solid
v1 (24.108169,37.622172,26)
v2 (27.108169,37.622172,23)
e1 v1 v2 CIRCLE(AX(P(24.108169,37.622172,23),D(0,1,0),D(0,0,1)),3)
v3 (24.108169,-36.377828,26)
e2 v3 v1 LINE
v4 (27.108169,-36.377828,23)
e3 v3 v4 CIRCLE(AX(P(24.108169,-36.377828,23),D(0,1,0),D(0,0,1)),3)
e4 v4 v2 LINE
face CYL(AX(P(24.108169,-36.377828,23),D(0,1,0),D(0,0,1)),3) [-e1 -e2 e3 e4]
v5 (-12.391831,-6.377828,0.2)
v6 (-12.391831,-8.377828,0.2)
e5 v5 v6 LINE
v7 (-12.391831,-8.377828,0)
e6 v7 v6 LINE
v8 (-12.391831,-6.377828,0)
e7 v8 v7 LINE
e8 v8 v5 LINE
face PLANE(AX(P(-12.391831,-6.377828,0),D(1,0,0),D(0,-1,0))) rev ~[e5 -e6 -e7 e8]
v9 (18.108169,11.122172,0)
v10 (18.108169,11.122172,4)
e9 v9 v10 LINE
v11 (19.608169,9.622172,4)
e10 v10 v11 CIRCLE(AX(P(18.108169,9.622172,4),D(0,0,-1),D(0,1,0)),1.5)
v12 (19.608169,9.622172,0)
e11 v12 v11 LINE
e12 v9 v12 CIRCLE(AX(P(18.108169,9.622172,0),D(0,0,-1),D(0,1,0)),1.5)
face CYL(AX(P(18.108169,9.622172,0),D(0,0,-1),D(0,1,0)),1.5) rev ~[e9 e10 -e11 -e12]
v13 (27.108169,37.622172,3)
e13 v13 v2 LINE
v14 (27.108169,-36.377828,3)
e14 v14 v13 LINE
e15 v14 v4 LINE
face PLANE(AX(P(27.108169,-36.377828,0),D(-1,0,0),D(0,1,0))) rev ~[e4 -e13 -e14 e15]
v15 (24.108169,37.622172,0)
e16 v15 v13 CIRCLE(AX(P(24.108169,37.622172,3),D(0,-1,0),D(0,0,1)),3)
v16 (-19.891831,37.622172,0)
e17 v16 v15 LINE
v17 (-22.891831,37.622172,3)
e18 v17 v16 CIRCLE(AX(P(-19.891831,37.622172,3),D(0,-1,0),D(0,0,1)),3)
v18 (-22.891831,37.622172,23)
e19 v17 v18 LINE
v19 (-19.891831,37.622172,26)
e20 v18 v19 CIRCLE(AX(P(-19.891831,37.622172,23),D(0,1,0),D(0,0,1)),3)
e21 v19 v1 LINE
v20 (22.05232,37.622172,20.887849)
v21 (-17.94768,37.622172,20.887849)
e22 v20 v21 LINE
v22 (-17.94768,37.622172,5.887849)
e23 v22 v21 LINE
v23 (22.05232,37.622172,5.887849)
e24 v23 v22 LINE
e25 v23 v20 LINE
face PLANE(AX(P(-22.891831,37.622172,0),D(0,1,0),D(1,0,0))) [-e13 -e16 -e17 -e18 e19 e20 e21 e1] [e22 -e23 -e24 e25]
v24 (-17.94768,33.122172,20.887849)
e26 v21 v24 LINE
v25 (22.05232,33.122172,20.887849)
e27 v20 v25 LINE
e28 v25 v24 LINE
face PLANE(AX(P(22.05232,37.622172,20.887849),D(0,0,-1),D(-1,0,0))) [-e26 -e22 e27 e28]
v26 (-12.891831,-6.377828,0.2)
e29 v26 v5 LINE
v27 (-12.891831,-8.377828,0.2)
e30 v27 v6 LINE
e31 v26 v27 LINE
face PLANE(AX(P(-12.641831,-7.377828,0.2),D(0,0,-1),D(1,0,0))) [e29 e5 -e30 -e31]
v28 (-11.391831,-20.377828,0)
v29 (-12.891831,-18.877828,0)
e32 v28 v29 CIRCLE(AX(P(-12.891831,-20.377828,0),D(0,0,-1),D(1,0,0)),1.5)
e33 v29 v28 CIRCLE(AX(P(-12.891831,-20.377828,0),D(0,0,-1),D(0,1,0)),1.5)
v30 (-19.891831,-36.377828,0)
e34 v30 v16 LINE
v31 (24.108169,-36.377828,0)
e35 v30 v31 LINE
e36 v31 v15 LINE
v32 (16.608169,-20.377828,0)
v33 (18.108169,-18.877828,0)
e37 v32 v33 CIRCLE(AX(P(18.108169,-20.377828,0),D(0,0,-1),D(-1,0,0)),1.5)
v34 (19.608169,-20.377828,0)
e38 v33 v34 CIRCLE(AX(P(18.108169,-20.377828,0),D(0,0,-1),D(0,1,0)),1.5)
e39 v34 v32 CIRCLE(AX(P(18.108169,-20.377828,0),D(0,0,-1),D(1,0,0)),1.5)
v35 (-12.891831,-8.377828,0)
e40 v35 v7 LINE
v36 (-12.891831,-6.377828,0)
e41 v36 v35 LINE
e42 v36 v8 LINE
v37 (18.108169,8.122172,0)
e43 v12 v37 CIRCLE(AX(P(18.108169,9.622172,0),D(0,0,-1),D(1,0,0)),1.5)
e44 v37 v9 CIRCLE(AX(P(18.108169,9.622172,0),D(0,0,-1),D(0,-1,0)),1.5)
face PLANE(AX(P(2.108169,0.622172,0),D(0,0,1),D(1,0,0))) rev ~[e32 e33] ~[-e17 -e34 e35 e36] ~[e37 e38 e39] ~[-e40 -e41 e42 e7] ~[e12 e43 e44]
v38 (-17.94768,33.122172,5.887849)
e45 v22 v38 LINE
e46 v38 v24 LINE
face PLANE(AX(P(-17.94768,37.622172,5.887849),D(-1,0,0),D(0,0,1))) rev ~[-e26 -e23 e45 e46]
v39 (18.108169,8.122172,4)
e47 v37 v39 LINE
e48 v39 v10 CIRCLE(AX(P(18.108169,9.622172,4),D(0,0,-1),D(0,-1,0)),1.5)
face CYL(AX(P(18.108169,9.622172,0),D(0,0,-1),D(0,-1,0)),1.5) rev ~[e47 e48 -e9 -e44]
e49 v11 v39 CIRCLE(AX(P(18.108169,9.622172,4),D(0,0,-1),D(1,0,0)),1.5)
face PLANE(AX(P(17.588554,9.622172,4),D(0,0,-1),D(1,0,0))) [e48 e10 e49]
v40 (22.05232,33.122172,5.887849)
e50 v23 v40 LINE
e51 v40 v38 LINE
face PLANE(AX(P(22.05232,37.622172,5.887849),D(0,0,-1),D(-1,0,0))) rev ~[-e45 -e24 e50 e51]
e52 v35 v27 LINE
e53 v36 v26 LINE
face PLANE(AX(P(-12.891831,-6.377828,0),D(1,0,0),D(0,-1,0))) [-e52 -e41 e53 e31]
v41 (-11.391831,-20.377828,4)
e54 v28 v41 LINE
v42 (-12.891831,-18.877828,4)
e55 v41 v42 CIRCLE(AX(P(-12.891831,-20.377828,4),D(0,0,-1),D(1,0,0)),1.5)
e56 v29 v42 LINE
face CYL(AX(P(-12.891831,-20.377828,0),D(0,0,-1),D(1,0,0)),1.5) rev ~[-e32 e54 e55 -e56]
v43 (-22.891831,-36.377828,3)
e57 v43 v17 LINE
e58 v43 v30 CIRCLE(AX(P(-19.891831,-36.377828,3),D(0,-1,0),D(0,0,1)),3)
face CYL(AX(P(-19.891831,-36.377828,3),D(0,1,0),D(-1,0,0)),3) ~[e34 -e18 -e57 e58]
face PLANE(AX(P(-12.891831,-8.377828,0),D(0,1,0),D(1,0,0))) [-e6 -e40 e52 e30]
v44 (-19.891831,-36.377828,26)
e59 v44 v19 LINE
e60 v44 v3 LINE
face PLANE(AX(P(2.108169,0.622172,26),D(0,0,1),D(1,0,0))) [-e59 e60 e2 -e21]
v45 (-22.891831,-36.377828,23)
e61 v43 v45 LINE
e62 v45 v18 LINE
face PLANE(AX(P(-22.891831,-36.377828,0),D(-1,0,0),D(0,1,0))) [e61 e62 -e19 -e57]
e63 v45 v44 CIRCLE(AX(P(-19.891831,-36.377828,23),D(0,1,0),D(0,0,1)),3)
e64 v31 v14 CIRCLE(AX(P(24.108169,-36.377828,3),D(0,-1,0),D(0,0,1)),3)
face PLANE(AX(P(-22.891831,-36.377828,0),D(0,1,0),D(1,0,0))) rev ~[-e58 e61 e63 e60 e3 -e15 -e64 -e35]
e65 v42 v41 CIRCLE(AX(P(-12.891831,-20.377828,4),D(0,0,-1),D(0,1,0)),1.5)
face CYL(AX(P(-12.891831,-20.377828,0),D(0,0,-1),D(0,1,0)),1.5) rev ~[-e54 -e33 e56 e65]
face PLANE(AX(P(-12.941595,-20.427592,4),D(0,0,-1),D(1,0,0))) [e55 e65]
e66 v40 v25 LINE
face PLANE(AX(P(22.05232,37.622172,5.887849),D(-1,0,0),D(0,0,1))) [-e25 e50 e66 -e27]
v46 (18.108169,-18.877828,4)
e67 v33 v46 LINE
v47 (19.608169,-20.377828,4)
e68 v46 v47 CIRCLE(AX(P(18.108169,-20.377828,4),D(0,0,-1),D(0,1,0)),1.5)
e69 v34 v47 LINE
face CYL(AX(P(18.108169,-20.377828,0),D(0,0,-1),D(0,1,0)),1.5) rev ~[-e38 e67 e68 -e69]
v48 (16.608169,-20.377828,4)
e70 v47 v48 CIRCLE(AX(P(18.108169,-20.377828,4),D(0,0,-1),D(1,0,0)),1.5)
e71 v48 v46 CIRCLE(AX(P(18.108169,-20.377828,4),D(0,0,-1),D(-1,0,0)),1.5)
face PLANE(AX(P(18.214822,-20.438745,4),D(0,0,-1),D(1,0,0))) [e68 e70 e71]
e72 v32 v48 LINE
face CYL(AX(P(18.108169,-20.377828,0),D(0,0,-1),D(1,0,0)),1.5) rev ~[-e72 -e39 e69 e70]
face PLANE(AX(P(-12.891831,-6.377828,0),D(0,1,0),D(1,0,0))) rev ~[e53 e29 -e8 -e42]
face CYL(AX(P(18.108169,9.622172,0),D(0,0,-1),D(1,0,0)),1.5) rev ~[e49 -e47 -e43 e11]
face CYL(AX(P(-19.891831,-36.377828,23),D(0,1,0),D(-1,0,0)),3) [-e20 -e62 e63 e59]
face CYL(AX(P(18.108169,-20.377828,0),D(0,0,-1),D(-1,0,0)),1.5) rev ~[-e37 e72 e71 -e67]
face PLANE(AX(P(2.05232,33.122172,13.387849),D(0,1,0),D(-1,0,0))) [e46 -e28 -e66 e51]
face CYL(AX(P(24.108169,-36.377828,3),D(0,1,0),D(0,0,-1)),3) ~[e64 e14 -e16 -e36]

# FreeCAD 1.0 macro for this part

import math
import FreeCAD as App
import Part
import Sketcher
from FreeCAD import Vector
Q = App.Units.Quantity


def edges_at(feature, points):
    """Names of the edges that pass closest to the given points."""
    edges = feature.Shape.Edges
    near = lambda p: min(range(len(edges)), key=lambda i: edges[i].distToShape(Part.Vertex(*p))[0])
    return sorted({f"Edge{near(p) + 1}" for p in points})

doc = App.newDocument("Part")
body = doc.addObject("PartDesign::Body", "Body")

# Sketch on XY plane
sketch1 = body.newObject("Sketcher::SketchObject", "Sketch")
sketch1.AttachmentSupport = (doc.getObject("XY_Plane"), [""])
sketch1.MapMode = "FlatFace"
sketch1.addGeometry([
    Part.LineSegment(Vector(-23, 38, 0), Vector(-23, -36, 0)),
    Part.LineSegment(Vector(-23, -36, 0), Vector(27, -36, 0)),
    Part.LineSegment(Vector(27, -36, 0), Vector(27, 38, 0)),
    Part.LineSegment(Vector(27, 38, 0), Vector(-23, 38, 0)),
], False)
sketch1.addConstraint([
    Sketcher.Constraint("Coincident", 0, 2, 1, 1),
    Sketcher.Constraint("Coincident", 1, 2, 2, 1),
    Sketcher.Constraint("Coincident", 2, 2, 3, 1),
    Sketcher.Constraint("Coincident", 3, 2, 0, 1),
    Sketcher.Constraint("Vertical", 0),
    Sketcher.Constraint("Horizontal", 1),
    Sketcher.Constraint("Vertical", 2),
    Sketcher.Constraint("Horizontal", 3),
    Sketcher.Constraint("DistanceX", 1, 1, 1, 2, Q("50 mm")),
    Sketcher.Constraint("DistanceY", 0, 2, 0, 1, Q("74 mm")),
    Sketcher.Constraint("DistanceX", 0, 2, -1, 1, Q("22.891831 mm")),
    Sketcher.Constraint("DistanceY", 0, 2, -1, 1, Q("36.377828 mm")),
])
pad1 = body.newObject("PartDesign::Pad", "Pad")
pad1.Profile = sketch1
pad1.Length = 26

# Sketch on XZ plane
sketch2 = body.newObject("Sketcher::SketchObject", "Sketch001")
sketch2.AttachmentSupport = (doc.getObject("XZ_Plane"), [""])
sketch2.MapMode = "FlatFace"
sketch2.AttachmentOffset = App.Placement(Vector(0, 0, -37.622172), App.Rotation())
sketch2.addGeometry([
    Part.LineSegment(Vector(22, 21, 0), Vector(22, 6, 0)),
    Part.LineSegment(Vector(22, 6, 0), Vector(-18, 6, 0)),
    Part.LineSegment(Vector(-18, 6, 0), Vector(-18, 21, 0)),
    Part.LineSegment(Vector(-18, 21, 0), Vector(22, 21, 0)),
], False)
sketch2.addConstraint([
    Sketcher.Constraint("Coincident", 0, 2, 1, 1),
    Sketcher.Constraint("Coincident", 1, 2, 2, 1),
    Sketcher.Constraint("Coincident", 2, 2, 3, 1),
    Sketcher.Constraint("Coincident", 3, 2, 0, 1),
    Sketcher.Constraint("Vertical", 0),
    Sketcher.Constraint("Horizontal", 1),
    Sketcher.Constraint("Vertical", 2),
    Sketcher.Constraint("Horizontal", 3),
    Sketcher.Constraint("DistanceX", 1, 2, 1, 1, Q("40 mm")),
    Sketcher.Constraint("DistanceY", 0, 2, 0, 1, Q("15 mm")),
    Sketcher.Constraint("DistanceX", -1, 1, 0, 2, Q("22.05232 mm")),
    Sketcher.Constraint("DistanceY", -1, 1, 0, 2, Q("5.887849 mm")),
])
pocket1 = body.newObject("PartDesign::Pocket", "Pocket")
pocket1.Profile = sketch2
pocket1.Length = 4.5
pocket1.Reversed = True
doc.recompute()

fillet = body.newObject("PartDesign::Fillet", "Fillet")
fillet.Base = (pocket1, edges_at(pocket1, [
    (27.108, 0.622, 0),
    (27.108, 0.622, 26),
    (-22.892, 0.622, 0),
    (-22.892, 0.622, 26),
]))
fillet.Radius = 3

# Sketch on XY plane
sketch3 = body.newObject("Sketcher::SketchObject", "Sketch002")
sketch3.AttachmentSupport = (doc.getObject("XY_Plane"), [""])
sketch3.MapMode = "FlatFace"
sketch3.addGeometry([
    Part.ArcOfCircle(Part.Circle(Vector(18.1, -20.4, 0), Vector(0, 0, 1), 1.5), math.radians(0), math.radians(90)),  # 0
    Part.ArcOfCircle(Part.Circle(Vector(18.1, -20.4, 0), Vector(0, 0, 1), 1.5), math.radians(180), math.radians(360)),  # 1
    Part.ArcOfCircle(Part.Circle(Vector(18.1, -20.4, 0), Vector(0, 0, 1), 1.5), math.radians(90), math.radians(180)),  # 2
    Part.ArcOfCircle(Part.Circle(Vector(-12.9, -20.4, 0), Vector(0, 0, 1), 1.5), math.radians(90), math.radians(360)),  # 3
    Part.ArcOfCircle(Part.Circle(Vector(-12.9, -20.4, 0), Vector(0, 0, 1), 1.5), math.radians(0), math.radians(90)),  # 4
    Part.ArcOfCircle(Part.Circle(Vector(18.1, 9.6, 0), Vector(0, 0, 1), 1.5), math.radians(90), math.radians(270)),  # 5
    Part.ArcOfCircle(Part.Circle(Vector(18.1, 9.6, 0), Vector(0, 0, 1), 1.5), math.radians(0), math.radians(90)),  # 6
    Part.ArcOfCircle(Part.Circle(Vector(18.1, 9.6, 0), Vector(0, 0, 1), 1.5), math.radians(-90), math.radians(0)),  # 7
], False)
sketch3.addConstraint([
    Sketcher.Constraint("Tangent", 0, 1, 1, 2),
    Sketcher.Constraint("Tangent", 1, 1, 2, 2),
    Sketcher.Constraint("Tangent", 2, 1, 0, 2),
    Sketcher.Constraint("Tangent", 3, 1, 4, 2),
    Sketcher.Constraint("Coincident", 4, 1, 3, 2),
    Sketcher.Constraint("Tangent", 5, 1, 6, 2),
    Sketcher.Constraint("Tangent", 6, 1, 7, 2),
    Sketcher.Constraint("Tangent", 7, 1, 5, 2),
    Sketcher.Constraint("Equal", 2, 3),
    Sketcher.Constraint("Equal", 4, 5),
    Sketcher.Constraint("Horizontal", 2, 3, 3, 3),
    Sketcher.Constraint("Horizontal", 4, 3, 0, 1),
    Sketcher.Constraint("Horizontal", 0, 1, 1, 1),
    Sketcher.Constraint("Horizontal", 1, 1, 4, 1),
    Sketcher.Constraint("Horizontal", 7, 3, 6, 1),
    Sketcher.Constraint("Vertical", 2, 3, 5, 3),
    Sketcher.Constraint("Vertical", 7, 3, 2, 1),
    Sketcher.Constraint("Vertical", 4, 3, 3, 1),
    Sketcher.Constraint("Vertical", 2, 1, 5, 1),
    Sketcher.Constraint("Vertical", 5, 1, 7, 1),
    Sketcher.Constraint("Radius", 0, Q("1.5 mm")),
    Sketcher.Constraint("DistanceX", 3, 3, 0, 3, Q("31 mm")),
    Sketcher.Constraint("DistanceY", 0, 3, 5, 3, Q("30 mm")),
    Sketcher.Constraint("DistanceX", -1, 1, 0, 3, Q("18.108169 mm")),
    Sketcher.Constraint("DistanceY", 0, 3, -1, 1, Q("20.377828 mm")),
])
pocket2 = body.newObject("PartDesign::Pocket", "Pocket001")
pocket2.Profile = sketch3
pocket2.Length = 4
pocket2.Reversed = True

# Sketch on XY plane
sketch4 = body.newObject("Sketcher::SketchObject", "Sketch003")
sketch4.AttachmentSupport = (doc.getObject("XY_Plane"), [""])
sketch4.MapMode = "FlatFace"
sketch4.addGeometry([
    Part.LineSegment(Vector(-12.9, -8.4, 0), Vector(-12.9, -6.4, 0)),
    Part.LineSegment(Vector(-12.9, -6.4, 0), Vector(-12.4, -6.4, 0)),
    Part.LineSegment(Vector(-12.4, -6.4, 0), Vector(-12.4, -8.4, 0)),
    Part.LineSegment(Vector(-12.4, -8.4, 0), Vector(-12.9, -8.4, 0)),
], False)
sketch4.addConstraint([
    Sketcher.Constraint("Coincident", 0, 2, 1, 1),
    Sketcher.Constraint("Coincident", 1, 2, 2, 1),
    Sketcher.Constraint("Coincident", 2, 2, 3, 1),
    Sketcher.Constraint("Coincident", 3, 2, 0, 1),
    Sketcher.Constraint("Vertical", 0),
    Sketcher.Constraint("Horizontal", 1),
    Sketcher.Constraint("Vertical", 2),
    Sketcher.Constraint("Horizontal", 3),
    Sketcher.Constraint("DistanceY", 0, 1, 0, 2, Q("2 mm")),
    Sketcher.Constraint("DistanceX", 1, 1, 1, 2, Q("0.5 mm")),
    Sketcher.Constraint("DistanceX", 0, 2, -1, 1, Q("12.891831 mm")),
    Sketcher.Constraint("DistanceY", 0, 2, -1, 1, Q("6.377828 mm")),
])
pocket3 = body.newObject("PartDesign::Pocket", "Pocket002")
pocket3.Profile = sketch4
pocket3.Length = 0.2
pocket3.Reversed = True

doc.recompute()
